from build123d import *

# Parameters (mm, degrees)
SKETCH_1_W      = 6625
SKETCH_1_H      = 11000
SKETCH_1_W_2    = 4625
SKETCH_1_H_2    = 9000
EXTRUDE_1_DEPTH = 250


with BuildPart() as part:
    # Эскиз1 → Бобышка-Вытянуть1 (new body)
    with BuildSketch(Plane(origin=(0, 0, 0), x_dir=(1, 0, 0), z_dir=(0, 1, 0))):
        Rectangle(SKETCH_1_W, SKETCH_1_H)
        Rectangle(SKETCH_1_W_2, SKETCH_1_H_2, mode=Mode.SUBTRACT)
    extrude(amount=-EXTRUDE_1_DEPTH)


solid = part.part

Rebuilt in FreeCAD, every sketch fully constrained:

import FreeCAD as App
import Part
import Sketcher
from FreeCAD import Vector


def add_polygon(sketch, points):
    """Adds a closed chain of lines whose ends are joined by coincident constraints."""
    first, n = sketch.GeometryCount, len(points)
    for a, b in zip(points, points[1:] + points[:1]):
        sketch.addGeometry(Part.LineSegment(App.Vector(*a, 0), App.Vector(*b, 0)), False)
    for i in range(n):
        sketch.addConstraint(Sketcher.Constraint("Coincident", first + i, 2, first + (i + 1) % n, 1))

doc = App.newDocument("Part")
params = doc.addObject("Spreadsheet::Sheet", "Params")
for row, (alias, value) in enumerate([
    ("sketch1_width", "6625 mm"),
    ("sketch1_width2", "4625 mm"),
    ("sketch1_height", "11000 mm"),
    ("sketch1_height2", "9000 mm"),
    ("pad1_length", "250 mm"),
], start=1):
    params.set(f"A{row}", alias)
    params.set(f"B{row}", "=" + value)
    params.setAlias(f"B{row}", alias)

body = doc.addObject("PartDesign::Body", "Body")

sketch1 = body.newObject("Sketcher::SketchObject", "Sketch")
sketch1.AttachmentSupport = (doc.getObject("XZ_Plane"), [""])
sketch1.MapMode = "FlatFace"
add_polygon(sketch1, [(-3312, -5500), (-3312, 5500), (3312, 5500), (3312, -5500)])
add_polygon(sketch1, [(2312, 4500), (-2312, 4500), (-2312, -4500), (2312, -4500)])
sketch1.addConstraint(Sketcher.Constraint("Vertical", 0))
sketch1.addConstraint(Sketcher.Constraint("Horizontal", 1))
sketch1.addConstraint(Sketcher.Constraint("Vertical", 2))
sketch1.addConstraint(Sketcher.Constraint("Horizontal", 3))
sketch1.addConstraint(Sketcher.Constraint("Horizontal", 4))
sketch1.addConstraint(Sketcher.Constraint("Vertical", 5))
sketch1.addConstraint(Sketcher.Constraint("Horizontal", 6))
sketch1.addConstraint(Sketcher.Constraint("Vertical", 7))
sketch1.addConstraint(Sketcher.Constraint("Symmetric", 0, 2, 2, 2, -1, 1))
sketch1.addConstraint(Sketcher.Constraint("Symmetric", 4, 2, 6, 2, -1, 1))
sketch1.addConstraint(Sketcher.Constraint("DistanceX", 1, 1, 1, 2, 6625.0))
sketch1.addConstraint(Sketcher.Constraint("DistanceX", 4, 2, 4, 1, 4625.0))
sketch1.addConstraint(Sketcher.Constraint("DistanceY", 0, 1, 0, 2, 11000.0))
sketch1.addConstraint(Sketcher.Constraint("DistanceY", 5, 2, 5, 1, 9000.0))
sketch1.setExpression("Constraints[18]", "Params.sketch1_width")
sketch1.setExpression("Constraints[19]", "Params.sketch1_width2")
sketch1.setExpression("Constraints[20]", "Params.sketch1_height")
sketch1.setExpression("Constraints[21]", "Params.sketch1_height2")
pad1 = body.newObject("PartDesign::Pad", "Pad")
pad1.Profile = sketch1
pad1.setExpression("Length", "Params.pad1_length")

doc.recompute()
